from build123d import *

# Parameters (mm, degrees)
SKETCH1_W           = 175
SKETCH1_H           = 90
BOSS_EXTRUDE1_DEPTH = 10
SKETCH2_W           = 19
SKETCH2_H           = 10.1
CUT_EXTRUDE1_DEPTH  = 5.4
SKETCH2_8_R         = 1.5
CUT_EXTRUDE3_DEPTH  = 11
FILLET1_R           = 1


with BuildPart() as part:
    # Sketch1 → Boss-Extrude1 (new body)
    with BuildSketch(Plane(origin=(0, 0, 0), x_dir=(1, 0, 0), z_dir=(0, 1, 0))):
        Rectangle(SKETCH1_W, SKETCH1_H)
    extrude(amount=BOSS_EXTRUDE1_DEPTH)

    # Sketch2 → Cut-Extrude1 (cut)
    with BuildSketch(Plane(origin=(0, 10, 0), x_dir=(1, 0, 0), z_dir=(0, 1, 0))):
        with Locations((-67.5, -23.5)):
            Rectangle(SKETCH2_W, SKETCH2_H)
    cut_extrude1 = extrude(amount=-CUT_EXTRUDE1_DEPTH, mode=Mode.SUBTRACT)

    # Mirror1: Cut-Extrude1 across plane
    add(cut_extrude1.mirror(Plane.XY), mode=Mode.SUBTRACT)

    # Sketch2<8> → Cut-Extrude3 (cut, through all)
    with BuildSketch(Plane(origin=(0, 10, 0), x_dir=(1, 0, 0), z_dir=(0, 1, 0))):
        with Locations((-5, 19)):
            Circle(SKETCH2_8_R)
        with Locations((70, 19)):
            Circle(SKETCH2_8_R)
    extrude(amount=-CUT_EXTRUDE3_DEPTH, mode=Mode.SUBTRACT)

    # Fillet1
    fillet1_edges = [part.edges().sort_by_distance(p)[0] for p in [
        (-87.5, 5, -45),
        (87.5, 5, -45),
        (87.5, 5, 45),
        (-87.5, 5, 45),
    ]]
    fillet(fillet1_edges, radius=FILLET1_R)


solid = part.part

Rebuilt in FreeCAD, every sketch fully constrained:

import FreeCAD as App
import Part
import Sketcher
Q = App.Units.Quantity


def edges_at(feature, points):
    """Names of the edges that pass closest to the given points."""
    edges = feature.Shape.Edges
    near = lambda p: min(range(len(edges)), key=lambda i: edges[i].distToShape(Part.Vertex(*p))[0])
    return sorted({f"Edge{near(p) + 1}" for p in points})


def add_polygon(sketch, points):
    """Adds a closed chain of lines whose ends are joined by coincident constraints."""
    first, n = sketch.GeometryCount, len(points)
    for a, b in zip(points, points[1:] + points[:1]):
        sketch.addGeometry(Part.LineSegment(App.Vector(*a, 0), App.Vector(*b, 0)), False)
    for i in range(n):
        sketch.addConstraint(Sketcher.Constraint("Coincident", first + i, 2, first + (i + 1) % n, 1))

doc = App.newDocument("Part")
params = doc.addObject("Spreadsheet::Sheet", "Params")
for row, (alias, value) in enumerate([
    ("sketch1_width", "175 mm"),
    ("sketch1_height", "90 mm"),
    ("pad1_length", "10 mm"),
    ("sketch2_width", "19 mm"),
    ("sketch2_height", "10.1 mm"),
    ("pocket1_length", "5.4 mm"),
    ("sketch3_diameter", "3 mm"),
    ("fillet_radius", "1 mm"),
], start=1):
    params.set(f"A{row}", alias)
    params.set(f"B{row}", "=" + value)
    params.setAlias(f"B{row}", alias)

body = doc.addObject("PartDesign::Body", "Body")

# Sketch on XZ plane
sketch1 = doc.addObject("Sketcher::SketchObject", "Sketch")
body.addObject(sketch1)
sketch1.AttachmentSupport = (doc.XZ_Plane, [""])
sketch1.MapMode = "FlatFace"
add_polygon(sketch1, [(-88, -45), (-88, 45), (88, 45), (88, -45)])  # lines 0-3
sketch1.addConstraint(Sketcher.Constraint("Vertical", 0))
sketch1.addConstraint(Sketcher.Constraint("Horizontal", 1))
sketch1.addConstraint(Sketcher.Constraint("Vertical", 2))
sketch1.addConstraint(Sketcher.Constraint("Horizontal", 3))
sketch1.addConstraint(Sketcher.Constraint("Symmetric", 0, 2, 2, 2, -1, 1))
sketch1.addConstraint(Sketcher.Constraint("DistanceX", 1, 1, 1, 2, Q("175 mm")))
sketch1.addConstraint(Sketcher.Constraint("DistanceY", 0, 1, 0, 2, Q("90 mm")))
sketch1.setExpression("Constraints[9]", "Params.sketch1_width")
sketch1.setExpression("Constraints[10]", "Params.sketch1_height")
pad1 = doc.addObject("PartDesign::Pad", "Pad")
body.addObject(pad1)
pad1.Profile = sketch1
pad1.setExpression("Length", "Params.pad1_length")
pad1.Reversed = True

# Sketch on XZ plane
sketch2 = doc.addObject("Sketcher::SketchObject", "Sketch001")
body.addObject(sketch2)
sketch2.AttachmentSupport = (doc.XZ_Plane, [""])
sketch2.MapMode = "FlatFace"
sketch2.AttachmentOffset = App.Placement(App.Vector(0, 0, -10), App.Rotation())
add_polygon(sketch2, [(-77, 18), (-77, 29), (-58, 29), (-58, 18)])  # lines 0-3
sketch2.addConstraint(Sketcher.Constraint("Vertical", 0))
sketch2.addConstraint(Sketcher.Constraint("Horizontal", 1))
sketch2.addConstraint(Sketcher.Constraint("Vertical", 2))
sketch2.addConstraint(Sketcher.Constraint("Horizontal", 3))
sketch2.addConstraint(Sketcher.Constraint("DistanceX", 1, 1, 1, 2, Q("19 mm")))
sketch2.addConstraint(Sketcher.Constraint("DistanceY", 0, 1, 0, 2, Q("10.1 mm")))
sketch2.addConstraint(Sketcher.Constraint("DistanceX", 0, 2, -1, 1, Q("77 mm")))
sketch2.addConstraint(Sketcher.Constraint("DistanceY", -1, 1, 0, 2, Q("28.55 mm")))
sketch2.setExpression("Constraints[8]", "Params.sketch2_width")
sketch2.setExpression("Constraints[9]", "Params.sketch2_height")
pocket1 = doc.addObject("PartDesign::Pocket", "Pocket")
body.addObject(pocket1)
pocket1.Profile = sketch2
pocket1.setExpression("Length", "Params.pocket1_length")
pocket1.Reversed = True
doc.recompute()

mirrored = doc.addObject("PartDesign::Mirrored", "Mirrored")
body.addObject(mirrored)
mirrored.Originals = [pocket1]
mirrored.MirrorPlane = (doc.XY_Plane, [""])
body.Tip = mirrored

# Sketch on XZ plane
sketch3 = doc.addObject("Sketcher::SketchObject", "Sketch002")
body.addObject(sketch3)
sketch3.AttachmentSupport = (doc.XZ_Plane, [""])
sketch3.MapMode = "FlatFace"
sketch3.AttachmentOffset = App.Placement(App.Vector(0, 0, -10), App.Rotation())
sketch3.addGeometry(Part.Circle(App.Vector(-5, -19, 0), App.Vector(0, 0, 1), 1.5), False)
sketch3.addGeometry(Part.Circle(App.Vector(70, -19, 0), App.Vector(0, 0, 1), 1.5), False)
sketch3.addConstraint(Sketcher.Constraint("Equal", 0, 1))
sketch3.addConstraint(Sketcher.Constraint("Horizontal", 0, 3, 1, 3))
sketch3.addConstraint(Sketcher.Constraint("Diameter", 0, Q("3 mm")))
sketch3.addConstraint(Sketcher.Constraint("DistanceX", 0, 3, -1, 1, Q("5 mm")))
sketch3.addConstraint(Sketcher.Constraint("DistanceY", 0, 3, -1, 1, Q("19 mm")))
sketch3.addConstraint(Sketcher.Constraint("DistanceX", -1, 1, 1, 3, Q("70 mm")))
sketch3.setExpression("Constraints[2]", "Params.sketch3_diameter")
pocket2 = doc.addObject("PartDesign::Pocket", "Pocket001")
body.addObject(pocket2)
pocket2.Profile = sketch3
pocket2.Type = "ThroughAll"
pocket2.Reversed = True
doc.recompute()

fillet = doc.addObject("PartDesign::Fillet", "Fillet")
body.addObject(fillet)
fillet.Base = (pocket2, edges_at(pocket2, [
    (-87.5, 5, -45),
    (87.5, 5, -45),
    (87.5, 5, 45),
    (-87.5, 5, 45),
]))
fillet.setExpression("Radius", "Params.fillet_radius")

doc.recompute()
